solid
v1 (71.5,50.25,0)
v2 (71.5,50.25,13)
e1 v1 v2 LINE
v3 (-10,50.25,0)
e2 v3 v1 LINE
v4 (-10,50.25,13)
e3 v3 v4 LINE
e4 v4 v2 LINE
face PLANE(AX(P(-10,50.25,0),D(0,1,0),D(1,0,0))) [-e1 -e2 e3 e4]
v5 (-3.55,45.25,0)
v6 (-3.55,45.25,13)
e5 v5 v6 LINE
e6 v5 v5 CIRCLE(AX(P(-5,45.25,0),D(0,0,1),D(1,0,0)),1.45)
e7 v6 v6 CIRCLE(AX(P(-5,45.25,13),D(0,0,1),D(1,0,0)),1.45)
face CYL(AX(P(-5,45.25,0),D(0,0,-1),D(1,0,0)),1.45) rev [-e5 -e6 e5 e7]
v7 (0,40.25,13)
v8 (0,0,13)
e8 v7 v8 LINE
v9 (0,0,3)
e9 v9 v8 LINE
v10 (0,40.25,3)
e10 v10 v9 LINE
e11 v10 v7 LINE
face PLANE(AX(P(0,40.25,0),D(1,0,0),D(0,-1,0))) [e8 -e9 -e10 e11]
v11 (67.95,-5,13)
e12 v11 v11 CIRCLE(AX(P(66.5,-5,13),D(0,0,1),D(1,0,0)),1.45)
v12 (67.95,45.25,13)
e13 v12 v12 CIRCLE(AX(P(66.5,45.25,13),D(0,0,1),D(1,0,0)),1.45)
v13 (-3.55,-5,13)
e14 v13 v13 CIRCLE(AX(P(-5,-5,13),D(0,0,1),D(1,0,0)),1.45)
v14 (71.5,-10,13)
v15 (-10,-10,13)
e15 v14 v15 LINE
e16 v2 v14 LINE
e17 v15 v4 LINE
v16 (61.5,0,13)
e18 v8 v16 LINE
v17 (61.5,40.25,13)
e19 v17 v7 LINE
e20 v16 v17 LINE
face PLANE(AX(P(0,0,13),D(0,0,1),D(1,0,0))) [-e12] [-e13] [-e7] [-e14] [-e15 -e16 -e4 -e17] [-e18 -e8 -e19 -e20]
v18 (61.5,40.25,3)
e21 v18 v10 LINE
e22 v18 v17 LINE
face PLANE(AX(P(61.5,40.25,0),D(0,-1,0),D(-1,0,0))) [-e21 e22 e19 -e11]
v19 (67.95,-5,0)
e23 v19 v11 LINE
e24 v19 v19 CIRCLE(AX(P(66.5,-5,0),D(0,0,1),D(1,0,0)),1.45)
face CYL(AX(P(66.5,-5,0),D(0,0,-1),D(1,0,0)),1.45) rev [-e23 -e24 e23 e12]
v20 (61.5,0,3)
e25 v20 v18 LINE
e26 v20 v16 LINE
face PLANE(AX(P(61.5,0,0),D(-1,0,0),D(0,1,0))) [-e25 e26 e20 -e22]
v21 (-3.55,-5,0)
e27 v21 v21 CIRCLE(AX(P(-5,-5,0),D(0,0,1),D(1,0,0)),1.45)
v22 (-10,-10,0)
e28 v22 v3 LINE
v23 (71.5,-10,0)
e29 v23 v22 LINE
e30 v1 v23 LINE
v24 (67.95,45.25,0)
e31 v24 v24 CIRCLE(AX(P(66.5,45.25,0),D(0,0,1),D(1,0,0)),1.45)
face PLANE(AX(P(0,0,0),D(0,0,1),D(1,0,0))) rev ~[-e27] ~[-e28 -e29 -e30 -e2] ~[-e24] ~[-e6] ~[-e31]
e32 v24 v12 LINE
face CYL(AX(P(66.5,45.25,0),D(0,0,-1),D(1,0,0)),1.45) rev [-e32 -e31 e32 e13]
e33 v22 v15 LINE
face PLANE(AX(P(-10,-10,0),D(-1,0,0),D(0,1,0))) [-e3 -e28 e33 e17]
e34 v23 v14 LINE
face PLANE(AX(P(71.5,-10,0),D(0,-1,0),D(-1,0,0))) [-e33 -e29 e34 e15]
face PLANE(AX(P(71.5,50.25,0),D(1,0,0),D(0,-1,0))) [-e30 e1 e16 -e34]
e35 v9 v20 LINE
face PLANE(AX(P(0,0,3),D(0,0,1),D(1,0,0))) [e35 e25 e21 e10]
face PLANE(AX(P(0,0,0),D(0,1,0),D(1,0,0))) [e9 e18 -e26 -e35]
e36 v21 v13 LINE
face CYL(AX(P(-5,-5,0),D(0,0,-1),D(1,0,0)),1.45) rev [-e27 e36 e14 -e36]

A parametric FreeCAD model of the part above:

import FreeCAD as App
import Part
import Sketcher
from FreeCAD import Vector


def add_polygon(sketch, points):
    """Adds a closed chain of lines whose ends are joined by coincident constraints."""
    first, n = sketch.GeometryCount, len(points)
    for a, b in zip(points, points[1:] + points[:1]):
        sketch.addGeometry(Part.LineSegment(App.Vector(*a, 0), App.Vector(*b, 0)), False)
    for i in range(n):
        sketch.addConstraint(Sketcher.Constraint("Coincident", first + i, 2, first + (i + 1) % n, 1))

doc = App.newDocument("Part")
body = doc.addObject("PartDesign::Body", "Body")

sketch1 = doc.addObject("Sketcher::SketchObject", "Sketch")
body.addObject(sketch1)
sketch1.AttachmentSupport = (doc.XY_Plane, [""])
sketch1.MapMode = "FlatFace"
add_polygon(sketch1, [(71.5, 50.2), (-10, 50.2), (-10, -10), (71.5, -10)])
sketch1.addGeometry(Part.Circle(Vector(-5, -5, 0), Vector(0, 0, 1), 1.4), False)
sketch1.addGeometry(Part.Circle(Vector(66.5, -5, 0), Vector(0, 0, 1), 1.4), False)
sketch1.addGeometry(Part.Circle(Vector(-5, 45.2, 0), Vector(0, 0, 1), 1.4), False)
add_polygon(sketch1, [(61.5, 0), (0, 0), (0, 40.2), (61.5, 40.2)])
sketch1.addGeometry(Part.Circle(Vector(66.5, 45.2, 0), Vector(0, 0, 1), 1.4), False)
sketch1.addConstraint(Sketcher.Constraint("Horizontal", 0))
sketch1.addConstraint(Sketcher.Constraint("Vertical", 1))
sketch1.addConstraint(Sketcher.Constraint("Horizontal", 2))
sketch1.addConstraint(Sketcher.Constraint("Vertical", 3))
sketch1.addConstraint(Sketcher.Constraint("Horizontal", 7))
sketch1.addConstraint(Sketcher.Constraint("Vertical", 8))
sketch1.addConstraint(Sketcher.Constraint("Horizontal", 9))
sketch1.addConstraint(Sketcher.Constraint("Vertical", 10))
sketch1.addConstraint(Sketcher.Constraint("Coincident", 7, 2, -1, 1))
sketch1.addConstraint(Sketcher.Constraint("Equal", 4, 5))
sketch1.addConstraint(Sketcher.Constraint("Equal", 5, 6))
sketch1.addConstraint(Sketcher.Constraint("Equal", 6, 11))
sketch1.addConstraint(Sketcher.Constraint("Horizontal", 4, 3, 5, 3))
sketch1.addConstraint(Sketcher.Constraint("Horizontal", 6, 3, 11, 3))
sketch1.addConstraint(Sketcher.Constraint("Vertical", 4, 3, 6, 3))
sketch1.addConstraint(Sketcher.Constraint("Vertical", 5, 3, 11, 3))
sketch1.addConstraint(Sketcher.Constraint("Diameter", 4, 2.9))
sketch1.addConstraint(Sketcher.Constraint("DistanceX", 0, 2, 0, 1, 81.5))
sketch1.addConstraint(Sketcher.Constraint("DistanceX", 7, 2, 7, 1, 61.5))
sketch1.addConstraint(Sketcher.Constraint("DistanceX", 4, 3, -1, 1, 5.0))
sketch1.addConstraint(Sketcher.Constraint("DistanceY", 4, 3, -1, 1, 5.0))
sketch1.addConstraint(Sketcher.Constraint("DistanceX", 0, 2, -1, 1, 10.0))
sketch1.addConstraint(Sketcher.Constraint("DistanceY", 1, 2, -1, 1, 10.0))
sketch1.addConstraint(Sketcher.Constraint("DistanceY", 6, 3, 0, 2, 5.0))
sketch1.addConstraint(Sketcher.Constraint("DistanceX", 5, 3, 2, 2, 5.0))
sketch1.addConstraint(Sketcher.Constraint("DistanceY", 8, 2, 6, 3, 5.0))
sketch1.addConstraint(Sketcher.Constraint("DistanceY", 1, 2, 1, 1, 60.25))
pad1 = doc.addObject("PartDesign::Pad", "Pad")
body.addObject(pad1)
pad1.Profile = sketch1
pad1.Length = 13

sketch2 = doc.addObject("Sketcher::SketchObject", "Sketch001")
body.addObject(sketch2)
sketch2.AttachmentSupport = (doc.XY_Plane, [""])
sketch2.MapMode = "FlatFace"
add_polygon(sketch2, [(0, 40), (0, 0), (62, 0), (62, 40)])
sketch2.addConstraint(Sketcher.Constraint("Vertical", 0))
sketch2.addConstraint(Sketcher.Constraint("Horizontal", 1))
sketch2.addConstraint(Sketcher.Constraint("Vertical", 2))
sketch2.addConstraint(Sketcher.Constraint("Horizontal", 3))
sketch2.addConstraint(Sketcher.Constraint("Coincident", 0, 2, -1, 1))
sketch2.addConstraint(Sketcher.Constraint("DistanceX", 1, 1, 1, 2, 61.5))
sketch2.addConstraint(Sketcher.Constraint("DistanceY", 0, 2, 0, 1, 40.25))
pad2 = doc.addObject("PartDesign::Pad", "Pad001")
body.addObject(pad2)
pad2.Profile = sketch2
pad2.Length = 3

doc.recompute()
